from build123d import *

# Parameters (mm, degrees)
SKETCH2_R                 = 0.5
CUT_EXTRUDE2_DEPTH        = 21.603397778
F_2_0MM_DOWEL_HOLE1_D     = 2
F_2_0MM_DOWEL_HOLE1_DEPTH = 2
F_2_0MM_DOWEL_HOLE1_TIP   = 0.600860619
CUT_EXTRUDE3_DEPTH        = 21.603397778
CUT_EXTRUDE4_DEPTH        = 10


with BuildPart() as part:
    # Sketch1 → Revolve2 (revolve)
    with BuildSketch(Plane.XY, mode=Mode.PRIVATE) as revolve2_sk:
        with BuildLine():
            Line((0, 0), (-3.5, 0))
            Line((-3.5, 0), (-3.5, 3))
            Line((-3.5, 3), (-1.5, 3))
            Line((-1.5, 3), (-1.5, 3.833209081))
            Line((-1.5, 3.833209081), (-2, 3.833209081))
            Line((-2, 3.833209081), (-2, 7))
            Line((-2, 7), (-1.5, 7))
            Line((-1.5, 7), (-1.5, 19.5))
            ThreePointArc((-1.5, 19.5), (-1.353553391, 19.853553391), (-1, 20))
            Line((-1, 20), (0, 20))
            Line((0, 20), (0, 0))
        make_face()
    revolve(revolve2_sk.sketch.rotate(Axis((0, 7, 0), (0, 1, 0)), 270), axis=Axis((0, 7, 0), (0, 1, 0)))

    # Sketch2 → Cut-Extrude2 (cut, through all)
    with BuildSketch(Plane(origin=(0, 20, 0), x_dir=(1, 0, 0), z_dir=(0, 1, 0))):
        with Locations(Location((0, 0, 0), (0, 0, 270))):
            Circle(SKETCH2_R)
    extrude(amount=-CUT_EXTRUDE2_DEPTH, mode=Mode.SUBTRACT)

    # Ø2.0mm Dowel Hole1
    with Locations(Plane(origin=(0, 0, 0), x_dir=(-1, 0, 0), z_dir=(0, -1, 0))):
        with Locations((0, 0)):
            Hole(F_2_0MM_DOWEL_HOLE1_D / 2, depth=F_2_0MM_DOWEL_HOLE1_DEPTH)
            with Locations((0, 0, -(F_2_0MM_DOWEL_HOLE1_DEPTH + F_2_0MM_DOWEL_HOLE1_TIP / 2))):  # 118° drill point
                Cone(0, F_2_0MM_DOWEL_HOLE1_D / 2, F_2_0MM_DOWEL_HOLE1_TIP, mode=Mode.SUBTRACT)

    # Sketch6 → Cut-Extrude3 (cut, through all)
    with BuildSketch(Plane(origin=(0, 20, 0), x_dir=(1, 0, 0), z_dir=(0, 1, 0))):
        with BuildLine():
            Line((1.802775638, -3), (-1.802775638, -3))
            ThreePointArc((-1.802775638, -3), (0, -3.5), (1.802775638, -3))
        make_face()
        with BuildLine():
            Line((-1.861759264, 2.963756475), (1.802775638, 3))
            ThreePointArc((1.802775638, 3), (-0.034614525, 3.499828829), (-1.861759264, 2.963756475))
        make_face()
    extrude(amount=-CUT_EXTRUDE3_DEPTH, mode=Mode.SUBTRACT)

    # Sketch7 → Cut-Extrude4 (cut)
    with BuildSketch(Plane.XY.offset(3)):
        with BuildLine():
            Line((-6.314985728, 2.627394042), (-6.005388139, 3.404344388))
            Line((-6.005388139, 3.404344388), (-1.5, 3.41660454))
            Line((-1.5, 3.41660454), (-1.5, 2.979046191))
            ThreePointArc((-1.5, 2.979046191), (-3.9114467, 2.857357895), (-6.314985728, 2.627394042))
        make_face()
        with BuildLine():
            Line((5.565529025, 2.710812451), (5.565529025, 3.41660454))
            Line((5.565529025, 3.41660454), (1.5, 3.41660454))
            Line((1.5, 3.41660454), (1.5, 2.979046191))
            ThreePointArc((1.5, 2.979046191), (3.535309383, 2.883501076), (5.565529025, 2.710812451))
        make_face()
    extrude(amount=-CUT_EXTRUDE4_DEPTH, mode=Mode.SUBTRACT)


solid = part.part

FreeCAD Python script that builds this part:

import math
import FreeCAD as App
import Part
import Sketcher
Q = App.Units.Quantity

doc = App.newDocument("Part")
body = doc.addObject("PartDesign::Body", "Body")

sketch1 = body.newObject("Sketcher::SketchObject", "Sketch")
sketch1.AttachmentSupport = (doc.getObject("XY_Plane"), [""])
sketch1.MapMode = "FlatFace"
sketch1.addGeometry([
    Part.LineSegment(App.Vector(-3.5, 0, 0), App.Vector(0, 0, 0)),
    Part.LineSegment(App.Vector(0, 0, 0), App.Vector(0, 20, 0)),
    Part.LineSegment(App.Vector(0, 20, 0), App.Vector(-1, 20, 0)),
    Part.ArcOfCircle(Part.Circle(App.Vector(-1, 19.5, 0), App.Vector(0, 0, 1), 0.5), math.radians(90), math.radians(180)),
    Part.LineSegment(App.Vector(-1.5, 19.5, 0), App.Vector(-1.5, 7, 0)),
    Part.LineSegment(App.Vector(-1.5, 7, 0), App.Vector(-2, 7, 0)),
    Part.LineSegment(App.Vector(-2, 7, 0), App.Vector(-2, 3.833209, 0)),
    Part.LineSegment(App.Vector(-2, 3.833209, 0), App.Vector(-1.5, 3.833209, 0)),
    Part.LineSegment(App.Vector(-1.5, 3.833209, 0), App.Vector(-1.5, 3, 0)),
    Part.LineSegment(App.Vector(-1.5, 3, 0), App.Vector(-3.5, 3, 0)),
    Part.LineSegment(App.Vector(-3.5, 3, 0), App.Vector(-3.5, 0, 0)),
], False)
sketch1.addConstraint([
    Sketcher.Constraint("Coincident", 0, 2, 1, 1),
    Sketcher.Constraint("Coincident", 1, 2, 2, 1),
    Sketcher.Constraint("Tangent", 2, 2, 3, 1),
    Sketcher.Constraint("Tangent", 3, 2, 4, 1),
    Sketcher.Constraint("Coincident", 4, 2, 5, 1),
    Sketcher.Constraint("Coincident", 5, 2, 6, 1),
    Sketcher.Constraint("Coincident", 6, 2, 7, 1),
    Sketcher.Constraint("Coincident", 7, 2, 8, 1),
    Sketcher.Constraint("Coincident", 8, 2, 9, 1),
    Sketcher.Constraint("Coincident", 9, 2, 10, 1),
    Sketcher.Constraint("Coincident", 10, 2, 0, 1),
    Sketcher.Constraint("Horizontal", 0),
    Sketcher.Constraint("Vertical", 1),
    Sketcher.Constraint("Horizontal", 2),
    Sketcher.Constraint("Vertical", 4),
    Sketcher.Constraint("Horizontal", 5),
    Sketcher.Constraint("Vertical", 6),
    Sketcher.Constraint("Horizontal", 7),
    Sketcher.Constraint("Vertical", 8),
    Sketcher.Constraint("Horizontal", 9),
    Sketcher.Constraint("Vertical", 10),
    Sketcher.Constraint("Coincident", 0, 2, -1, 1),
    Sketcher.Constraint("Vertical", 4, 2, 7, 2),
    Sketcher.Constraint("Radius", 3, Q("0.5 mm")),
    Sketcher.Constraint("DistanceX", 2, 2, 2, 1, Q("1 mm")),
    Sketcher.Constraint("DistanceX", 9, 2, 9, 1, Q("2 mm")),
    Sketcher.Constraint("DistanceY", 1, 1, 1, 2, Q("20 mm")),
    Sketcher.Constraint("DistanceY", 10, 2, 10, 1, Q("3 mm")),
    Sketcher.Constraint("DistanceX", 5, 2, 5, 1, Q("0.5 mm")),
    Sketcher.Constraint("DistanceY", 4, 2, 4, 1, Q("12.5 mm")),
    Sketcher.Constraint("DistanceY", 6, 2, 6, 1, Q("3.166791 mm")),
])
revolution = body.newObject("PartDesign::Revolution", "Revolution")
revolution.Profile = sketch1
revolution.ReferenceAxis = (sketch1, ["V_Axis"])
revolution.Angle = 360

sketch2 = body.newObject("Sketcher::SketchObject", "Sketch001")
sketch2.AttachmentSupport = (doc.getObject("XZ_Plane"), [""])
sketch2.MapMode = "FlatFace"
sketch2.AttachmentOffset = App.Placement(App.Vector(0, 0, -20), App.Rotation())
sketch2.addGeometry(Part.Circle(App.Vector(0, 0, 0), App.Vector(0, 0, 1), 0.5), False)
sketch2.addConstraint([
    Sketcher.Constraint("Coincident", 0, 3, -1, 1),
    Sketcher.Constraint("Diameter", 0, Q("1 mm")),
])
pocket1 = body.newObject("PartDesign::Pocket", "Pocket")
pocket1.Profile = sketch2
pocket1.Type = "ThroughAll"
pocket1.Reversed = True

sketch3 = body.newObject("Sketcher::SketchObject", "Sketch002")
sketch3.AttachmentSupport = (doc.getObject("XZ_Plane"), [""])
sketch3.MapMode = "FlatFace"
sketch3.addGeometry(Part.Circle(App.Vector(0, 0, 0), App.Vector(0, 0, 1), 1), False)
sketch3.addConstraint([
    Sketcher.Constraint("Coincident", 0, 3, -1, 1),
    Sketcher.Constraint("Diameter", 0, Q("2 mm")),
])
doc.recompute()
hole = body.newObject("PartDesign::Hole", "Hole")
hole.Profile = sketch3
hole.ThreadType = "None"
hole.Diameter = 2
hole.DepthType = "Dimension"
hole.Depth = 2
hole.DrillPoint = "Angled"
hole.DrillPointAngle = 118

sketch4 = body.newObject("Sketcher::SketchObject", "Sketch003")
sketch4.AttachmentSupport = (doc.getObject("XZ_Plane"), [""])
sketch4.MapMode = "FlatFace"
sketch4.AttachmentOffset = App.Placement(App.Vector(0, 0, -20), App.Rotation())
sketch4.addGeometry([
    Part.LineSegment(App.Vector(1.802776, 3, 0), App.Vector(-1.802776, 3, 0)),
    Part.ArcOfCircle(Part.Circle(App.Vector(0, 0, 0), App.Vector(0, 0, 1), 3.5), math.radians(58.997281), math.radians(121.002719)),
    Part.LineSegment(App.Vector(-1.861759, -2.963756, 0), App.Vector(1.802776, -3, 0)),
    Part.ArcOfCircle(Part.Circle(App.Vector(0, 0, 0), App.Vector(0, 0, 1), 3.5), math.radians(-122.136033), math.radians(-58.997281)),
], False)
sketch4.addConstraint([
    Sketcher.Constraint("Coincident", 0, 1, 1, 1),
    Sketcher.Constraint("Coincident", 1, 2, 0, 2),
    Sketcher.Constraint("Coincident", 2, 1, 3, 1),
    Sketcher.Constraint("Coincident", 3, 2, 2, 2),
    Sketcher.Constraint("Horizontal", 0),
    Sketcher.Constraint("Coincident", 1, 3, -1, 1),
    Sketcher.Constraint("Coincident", 3, 3, -1, 1),
    Sketcher.Constraint("Equal", 1, 3),
    Sketcher.Constraint("Vertical", 0, 1, 3, 2),
    Sketcher.Constraint("Radius", 1, Q("3.5 mm")),
    Sketcher.Constraint("DistanceY", -1, 1, 0, 1, Q("3 mm")),
    Sketcher.Constraint("DistanceX", 2, 1, -1, 1, Q("1.861759 mm")),
])
pocket2 = body.newObject("PartDesign::Pocket", "Pocket001")
pocket2.Profile = sketch4
pocket2.Type = "ThroughAll"
pocket2.Reversed = True

sketch5 = body.newObject("Sketcher::SketchObject", "Sketch004")
sketch5.AttachmentSupport = (doc.getObject("XY_Plane"), [""])
sketch5.MapMode = "FlatFace"
sketch5.AttachmentOffset = App.Placement(App.Vector(0, 0, 3), App.Rotation())
sketch5.addGeometry([
    Part.LineSegment(App.Vector(-6.005388, 3.404344, 0), App.Vector(-6.314986, 2.627394, 0)),
    Part.ArcOfCircle(Part.Circle(App.Vector(0, -50.7, 0), App.Vector(0, 0, 1), 53.7), math.radians(91.600649), math.radians(96.753468)),
    Part.LineSegment(App.Vector(-1.5, 2.979046, 0), App.Vector(-1.5, 3.416605, 0)),
    Part.LineSegment(App.Vector(-1.5, 3.416605, 0), App.Vector(-6.005388, 3.404344, 0)),
    Part.LineSegment(App.Vector(5.565529, 2.710812, 0), App.Vector(5.565529, 3.416605, 0)),
    Part.LineSegment(App.Vector(5.565529, 3.416605, 0), App.Vector(1.5, 3.416605, 0)),
    Part.LineSegment(App.Vector(1.5, 3.416605, 0), App.Vector(1.5, 2.979046, 0)),
    Part.ArcOfCircle(Part.Circle(App.Vector(0, -50.7, 0), App.Vector(0, 0, 1), 53.7), math.radians(84.051118), math.radians(88.399351)),
], False)
sketch5.addConstraint([
    Sketcher.Constraint("Coincident", 0, 2, 1, 2),
    Sketcher.Constraint("Coincident", 1, 1, 2, 1),
    Sketcher.Constraint("Coincident", 2, 2, 3, 1),
    Sketcher.Constraint("Coincident", 3, 2, 0, 1),
    Sketcher.Constraint("Coincident", 4, 2, 5, 1),
    Sketcher.Constraint("Coincident", 5, 2, 6, 1),
    Sketcher.Constraint("Coincident", 6, 2, 7, 2),
    Sketcher.Constraint("Coincident", 7, 1, 4, 1),
    Sketcher.Constraint("Vertical", 2),
    Sketcher.Constraint("Vertical", 4),
    Sketcher.Constraint("Horizontal", 5),
    Sketcher.Constraint("Vertical", 6),
    Sketcher.Constraint("Coincident", 7, 3, 1, 3),
    Sketcher.Constraint("Equal", 1, 7),
    Sketcher.Constraint("Symmetric", 2, 2, 5, 2, -2),
    Sketcher.Constraint("PointOnObject", 1, 3, -2),
    Sketcher.Constraint("Radius", 1, Q("53.7 mm")),
    Sketcher.Constraint("DistanceX", 2, 2, 5, 2, Q("3 mm")),
    Sketcher.Constraint("DistanceY", 1, 3, -1, 1, Q("50.7 mm")),
    Sketcher.Constraint("DistanceX", 5, 2, 5, 1, Q("4.065529 mm")),
    Sketcher.Constraint("DistanceY", 2, 1, 2, 2, Q("0.437558 mm")),
    Sketcher.Constraint("DistanceY", 1, 1, 3, 2, Q("0.425298 mm")),
    Sketcher.Constraint("DistanceX", 3, 2, -1, 1, Q("6.005388 mm")),
    Sketcher.Constraint("DistanceY", 0, 2, 2, 2, Q("0.78921 mm")),
])
pocket3 = body.newObject("PartDesign::Pocket", "Pocket002")
pocket3.Profile = sketch5
pocket3.Length = 10

doc.recompute()
